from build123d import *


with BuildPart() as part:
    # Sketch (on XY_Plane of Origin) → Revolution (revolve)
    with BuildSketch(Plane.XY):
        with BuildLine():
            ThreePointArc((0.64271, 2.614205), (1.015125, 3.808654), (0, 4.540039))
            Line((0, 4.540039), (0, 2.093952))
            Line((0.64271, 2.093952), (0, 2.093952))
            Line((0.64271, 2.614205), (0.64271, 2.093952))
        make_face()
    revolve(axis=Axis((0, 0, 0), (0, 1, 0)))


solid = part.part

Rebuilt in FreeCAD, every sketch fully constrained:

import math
import FreeCAD as App
import Part
import Sketcher

V = App.Vector
Q = App.Units.Quantity

doc = App.newDocument("Part")
params = doc.addObject("Spreadsheet::Sheet", "Params")
for row, (alias, value) in enumerate([
    ("revolution_angle", "360 deg"),
], start=1):
    params.set(f"A{row}", alias)
    params.set(f"B{row}", "=" + value)
    params.setAlias(f"B{row}", alias)

body = doc.addObject("PartDesign::Body", "Body")

# Sketch on XY plane
sketch1 = doc.addObject("Sketcher::SketchObject", "Sketch")
body.addObject(sketch1)
sketch1.AttachmentSupport = (doc.XY_Plane, [""])
sketch1.MapMode = "FlatFace"
sketch1.addGeometry([
    Part.ArcOfCircle(Part.Circle(V(0, 3.469876, 0), V(0, 0, 1), 1.070163), math.radians(-53.089136), math.radians(90.000014)),
    Part.LineSegment(V(0, 4.540039, 0), V(0, 2.093952, 0)),
    Part.LineSegment(V(0, 2.093952, 0), V(0.64271, 2.093952, 0)),
    Part.LineSegment(V(0.64271, 2.093952, 0), V(0.64271, 2.614205, 0)),
], False)
sketch1.addConstraint([
    Sketcher.Constraint("Coincident", 0, 2, 1, 1),
    Sketcher.Constraint("Coincident", 1, 2, 2, 1),
    Sketcher.Constraint("Coincident", 2, 2, 3, 1),
    Sketcher.Constraint("Coincident", 3, 2, 0, 1),
    Sketcher.Constraint("Vertical", 1),
    Sketcher.Constraint("Horizontal", 2),
    Sketcher.Constraint("Vertical", 3),
    Sketcher.Constraint("PointOnObject", 0, 3, -2),
    Sketcher.Constraint("PointOnObject", 0, 2, -2),
    Sketcher.Constraint("Radius", 0, Q("1.070163 mm")),
    Sketcher.Constraint("DistanceX", 2, 1, 2, 2, Q("0.64271 mm")),
    Sketcher.Constraint("DistanceY", 1, 2, 1, 1, Q("2.446087 mm")),
    Sketcher.Constraint("DistanceY", -1, 1, 0, 2, Q("4.540039 mm")),
])
revolution = doc.addObject("PartDesign::Revolution", "Revolution")
body.addObject(revolution)
revolution.Profile = sketch1
revolution.ReferenceAxis = (sketch1, ["V_Axis"])
revolution.setExpression("Angle", "Params.revolution_angle")

doc.recompute()
